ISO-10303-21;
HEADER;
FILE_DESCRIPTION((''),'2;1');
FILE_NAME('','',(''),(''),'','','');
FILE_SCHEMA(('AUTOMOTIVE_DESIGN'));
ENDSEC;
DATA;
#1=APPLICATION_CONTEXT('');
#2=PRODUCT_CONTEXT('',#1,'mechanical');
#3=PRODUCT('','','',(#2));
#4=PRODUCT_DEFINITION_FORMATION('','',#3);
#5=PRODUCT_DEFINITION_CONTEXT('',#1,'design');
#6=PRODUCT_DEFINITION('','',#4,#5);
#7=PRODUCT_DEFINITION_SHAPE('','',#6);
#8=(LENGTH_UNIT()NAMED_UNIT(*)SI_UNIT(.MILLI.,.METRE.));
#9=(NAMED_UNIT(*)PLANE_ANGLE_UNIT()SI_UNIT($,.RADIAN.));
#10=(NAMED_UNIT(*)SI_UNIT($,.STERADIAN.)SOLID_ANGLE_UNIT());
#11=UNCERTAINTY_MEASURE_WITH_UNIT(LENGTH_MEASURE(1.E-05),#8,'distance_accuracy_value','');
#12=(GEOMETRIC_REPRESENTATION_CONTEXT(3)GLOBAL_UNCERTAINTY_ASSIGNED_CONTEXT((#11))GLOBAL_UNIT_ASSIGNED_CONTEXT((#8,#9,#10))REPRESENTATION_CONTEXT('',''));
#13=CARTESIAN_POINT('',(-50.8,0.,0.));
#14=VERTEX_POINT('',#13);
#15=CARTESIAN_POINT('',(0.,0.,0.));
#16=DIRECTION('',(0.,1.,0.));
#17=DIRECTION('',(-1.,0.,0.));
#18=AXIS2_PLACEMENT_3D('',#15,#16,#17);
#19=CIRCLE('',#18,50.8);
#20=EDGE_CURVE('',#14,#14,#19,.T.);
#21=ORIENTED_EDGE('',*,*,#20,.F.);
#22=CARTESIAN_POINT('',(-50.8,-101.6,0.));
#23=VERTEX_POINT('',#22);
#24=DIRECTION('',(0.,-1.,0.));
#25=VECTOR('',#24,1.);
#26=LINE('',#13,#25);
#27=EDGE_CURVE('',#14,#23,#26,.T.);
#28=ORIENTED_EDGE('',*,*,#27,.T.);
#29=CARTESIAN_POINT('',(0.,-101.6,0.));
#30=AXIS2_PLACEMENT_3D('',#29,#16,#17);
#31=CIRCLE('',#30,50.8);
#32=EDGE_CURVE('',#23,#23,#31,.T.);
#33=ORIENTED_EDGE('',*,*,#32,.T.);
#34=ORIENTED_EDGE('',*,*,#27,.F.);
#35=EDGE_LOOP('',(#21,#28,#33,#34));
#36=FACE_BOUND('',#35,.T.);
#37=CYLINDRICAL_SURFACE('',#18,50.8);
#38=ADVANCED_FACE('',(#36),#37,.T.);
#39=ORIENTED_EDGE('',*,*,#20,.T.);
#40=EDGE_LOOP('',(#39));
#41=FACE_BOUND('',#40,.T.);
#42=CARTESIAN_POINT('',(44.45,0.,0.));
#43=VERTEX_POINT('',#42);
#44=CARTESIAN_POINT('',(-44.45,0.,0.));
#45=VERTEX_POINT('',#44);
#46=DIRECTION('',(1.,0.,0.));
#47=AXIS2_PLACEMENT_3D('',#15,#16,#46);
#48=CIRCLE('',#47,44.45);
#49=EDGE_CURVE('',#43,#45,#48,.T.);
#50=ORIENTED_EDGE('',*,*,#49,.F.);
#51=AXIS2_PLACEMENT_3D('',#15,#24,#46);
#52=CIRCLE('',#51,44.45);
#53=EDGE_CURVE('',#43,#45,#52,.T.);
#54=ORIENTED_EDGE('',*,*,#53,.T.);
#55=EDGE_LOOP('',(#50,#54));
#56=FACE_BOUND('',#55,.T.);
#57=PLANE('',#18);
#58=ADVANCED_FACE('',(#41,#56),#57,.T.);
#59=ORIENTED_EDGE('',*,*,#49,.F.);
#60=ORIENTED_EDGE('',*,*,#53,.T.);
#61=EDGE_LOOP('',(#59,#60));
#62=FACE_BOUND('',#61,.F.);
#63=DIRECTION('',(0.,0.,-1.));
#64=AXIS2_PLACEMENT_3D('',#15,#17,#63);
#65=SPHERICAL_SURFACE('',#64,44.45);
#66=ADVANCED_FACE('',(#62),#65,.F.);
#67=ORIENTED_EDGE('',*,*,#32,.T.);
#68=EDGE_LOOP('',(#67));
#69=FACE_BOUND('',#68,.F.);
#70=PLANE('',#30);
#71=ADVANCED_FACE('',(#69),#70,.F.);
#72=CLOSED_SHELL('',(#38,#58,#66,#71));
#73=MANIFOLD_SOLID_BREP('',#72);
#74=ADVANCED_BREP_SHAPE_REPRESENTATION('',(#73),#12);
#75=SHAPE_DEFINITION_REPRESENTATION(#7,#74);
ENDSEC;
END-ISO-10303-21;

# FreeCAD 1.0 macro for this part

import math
import FreeCAD as App
import Part
import Sketcher
Q = App.Units.Quantity

doc = App.newDocument("Part")
body = doc.addObject("PartDesign::Body", "Body")

sketch1 = doc.addObject("Sketcher::SketchObject", "Sketch")
body.addObject(sketch1)
sketch1.AttachmentSupport = (doc.XZ_Plane, [""])
sketch1.MapMode = "FlatFace"
sketch1.addGeometry(Part.Circle(App.Vector(0, 0, 0), App.Vector(0, 0, 1), 51), False)
sketch1.addConstraint(Sketcher.Constraint("Coincident", 0, 3, -1, 1))
sketch1.addConstraint(Sketcher.Constraint("Diameter", 0, Q("4 in")))
pad1 = doc.addObject("PartDesign::Pad", "Pad")
body.addObject(pad1)
pad1.Profile = sketch1
pad1.Length = Q("4 in")

sketch2 = doc.addObject("Sketcher::SketchObject", "Sketch001")
body.addObject(sketch2)
sketch2.AttachmentSupport = (doc.XZ_Plane, [""])
sketch2.MapMode = "FlatFace"
sketch2.addGeometry(Part.LineSegment(App.Vector(-44, 0, 0), App.Vector(44, 0, 0)), False)
sketch2.addGeometry(Part.ArcOfCircle(Part.Circle(App.Vector(0, 0, 0), App.Vector(0, 0, 1), 44), math.radians(180), math.radians(360)), False)
sketch2.addConstraint(Sketcher.Constraint("Coincident", 0, 1, 1, 1))
sketch2.addConstraint(Sketcher.Constraint("Coincident", 1, 2, 0, 2))
sketch2.addConstraint(Sketcher.Constraint("Horizontal", 0))
sketch2.addConstraint(Sketcher.Constraint("Coincident", 1, 3, -1, 1))
sketch2.addConstraint(Sketcher.Constraint("PointOnObject", 0, 1, -1))
sketch2.addConstraint(Sketcher.Constraint("Radius", 1, Q("1.75 in")))
groove = doc.addObject("PartDesign::Groove", "Groove")
body.addObject(groove)
groove.Profile = sketch2
groove.ReferenceAxis = (sketch2, ["H_Axis"])
groove.Angle = 180
groove.Reversed = True

doc.recompute()
